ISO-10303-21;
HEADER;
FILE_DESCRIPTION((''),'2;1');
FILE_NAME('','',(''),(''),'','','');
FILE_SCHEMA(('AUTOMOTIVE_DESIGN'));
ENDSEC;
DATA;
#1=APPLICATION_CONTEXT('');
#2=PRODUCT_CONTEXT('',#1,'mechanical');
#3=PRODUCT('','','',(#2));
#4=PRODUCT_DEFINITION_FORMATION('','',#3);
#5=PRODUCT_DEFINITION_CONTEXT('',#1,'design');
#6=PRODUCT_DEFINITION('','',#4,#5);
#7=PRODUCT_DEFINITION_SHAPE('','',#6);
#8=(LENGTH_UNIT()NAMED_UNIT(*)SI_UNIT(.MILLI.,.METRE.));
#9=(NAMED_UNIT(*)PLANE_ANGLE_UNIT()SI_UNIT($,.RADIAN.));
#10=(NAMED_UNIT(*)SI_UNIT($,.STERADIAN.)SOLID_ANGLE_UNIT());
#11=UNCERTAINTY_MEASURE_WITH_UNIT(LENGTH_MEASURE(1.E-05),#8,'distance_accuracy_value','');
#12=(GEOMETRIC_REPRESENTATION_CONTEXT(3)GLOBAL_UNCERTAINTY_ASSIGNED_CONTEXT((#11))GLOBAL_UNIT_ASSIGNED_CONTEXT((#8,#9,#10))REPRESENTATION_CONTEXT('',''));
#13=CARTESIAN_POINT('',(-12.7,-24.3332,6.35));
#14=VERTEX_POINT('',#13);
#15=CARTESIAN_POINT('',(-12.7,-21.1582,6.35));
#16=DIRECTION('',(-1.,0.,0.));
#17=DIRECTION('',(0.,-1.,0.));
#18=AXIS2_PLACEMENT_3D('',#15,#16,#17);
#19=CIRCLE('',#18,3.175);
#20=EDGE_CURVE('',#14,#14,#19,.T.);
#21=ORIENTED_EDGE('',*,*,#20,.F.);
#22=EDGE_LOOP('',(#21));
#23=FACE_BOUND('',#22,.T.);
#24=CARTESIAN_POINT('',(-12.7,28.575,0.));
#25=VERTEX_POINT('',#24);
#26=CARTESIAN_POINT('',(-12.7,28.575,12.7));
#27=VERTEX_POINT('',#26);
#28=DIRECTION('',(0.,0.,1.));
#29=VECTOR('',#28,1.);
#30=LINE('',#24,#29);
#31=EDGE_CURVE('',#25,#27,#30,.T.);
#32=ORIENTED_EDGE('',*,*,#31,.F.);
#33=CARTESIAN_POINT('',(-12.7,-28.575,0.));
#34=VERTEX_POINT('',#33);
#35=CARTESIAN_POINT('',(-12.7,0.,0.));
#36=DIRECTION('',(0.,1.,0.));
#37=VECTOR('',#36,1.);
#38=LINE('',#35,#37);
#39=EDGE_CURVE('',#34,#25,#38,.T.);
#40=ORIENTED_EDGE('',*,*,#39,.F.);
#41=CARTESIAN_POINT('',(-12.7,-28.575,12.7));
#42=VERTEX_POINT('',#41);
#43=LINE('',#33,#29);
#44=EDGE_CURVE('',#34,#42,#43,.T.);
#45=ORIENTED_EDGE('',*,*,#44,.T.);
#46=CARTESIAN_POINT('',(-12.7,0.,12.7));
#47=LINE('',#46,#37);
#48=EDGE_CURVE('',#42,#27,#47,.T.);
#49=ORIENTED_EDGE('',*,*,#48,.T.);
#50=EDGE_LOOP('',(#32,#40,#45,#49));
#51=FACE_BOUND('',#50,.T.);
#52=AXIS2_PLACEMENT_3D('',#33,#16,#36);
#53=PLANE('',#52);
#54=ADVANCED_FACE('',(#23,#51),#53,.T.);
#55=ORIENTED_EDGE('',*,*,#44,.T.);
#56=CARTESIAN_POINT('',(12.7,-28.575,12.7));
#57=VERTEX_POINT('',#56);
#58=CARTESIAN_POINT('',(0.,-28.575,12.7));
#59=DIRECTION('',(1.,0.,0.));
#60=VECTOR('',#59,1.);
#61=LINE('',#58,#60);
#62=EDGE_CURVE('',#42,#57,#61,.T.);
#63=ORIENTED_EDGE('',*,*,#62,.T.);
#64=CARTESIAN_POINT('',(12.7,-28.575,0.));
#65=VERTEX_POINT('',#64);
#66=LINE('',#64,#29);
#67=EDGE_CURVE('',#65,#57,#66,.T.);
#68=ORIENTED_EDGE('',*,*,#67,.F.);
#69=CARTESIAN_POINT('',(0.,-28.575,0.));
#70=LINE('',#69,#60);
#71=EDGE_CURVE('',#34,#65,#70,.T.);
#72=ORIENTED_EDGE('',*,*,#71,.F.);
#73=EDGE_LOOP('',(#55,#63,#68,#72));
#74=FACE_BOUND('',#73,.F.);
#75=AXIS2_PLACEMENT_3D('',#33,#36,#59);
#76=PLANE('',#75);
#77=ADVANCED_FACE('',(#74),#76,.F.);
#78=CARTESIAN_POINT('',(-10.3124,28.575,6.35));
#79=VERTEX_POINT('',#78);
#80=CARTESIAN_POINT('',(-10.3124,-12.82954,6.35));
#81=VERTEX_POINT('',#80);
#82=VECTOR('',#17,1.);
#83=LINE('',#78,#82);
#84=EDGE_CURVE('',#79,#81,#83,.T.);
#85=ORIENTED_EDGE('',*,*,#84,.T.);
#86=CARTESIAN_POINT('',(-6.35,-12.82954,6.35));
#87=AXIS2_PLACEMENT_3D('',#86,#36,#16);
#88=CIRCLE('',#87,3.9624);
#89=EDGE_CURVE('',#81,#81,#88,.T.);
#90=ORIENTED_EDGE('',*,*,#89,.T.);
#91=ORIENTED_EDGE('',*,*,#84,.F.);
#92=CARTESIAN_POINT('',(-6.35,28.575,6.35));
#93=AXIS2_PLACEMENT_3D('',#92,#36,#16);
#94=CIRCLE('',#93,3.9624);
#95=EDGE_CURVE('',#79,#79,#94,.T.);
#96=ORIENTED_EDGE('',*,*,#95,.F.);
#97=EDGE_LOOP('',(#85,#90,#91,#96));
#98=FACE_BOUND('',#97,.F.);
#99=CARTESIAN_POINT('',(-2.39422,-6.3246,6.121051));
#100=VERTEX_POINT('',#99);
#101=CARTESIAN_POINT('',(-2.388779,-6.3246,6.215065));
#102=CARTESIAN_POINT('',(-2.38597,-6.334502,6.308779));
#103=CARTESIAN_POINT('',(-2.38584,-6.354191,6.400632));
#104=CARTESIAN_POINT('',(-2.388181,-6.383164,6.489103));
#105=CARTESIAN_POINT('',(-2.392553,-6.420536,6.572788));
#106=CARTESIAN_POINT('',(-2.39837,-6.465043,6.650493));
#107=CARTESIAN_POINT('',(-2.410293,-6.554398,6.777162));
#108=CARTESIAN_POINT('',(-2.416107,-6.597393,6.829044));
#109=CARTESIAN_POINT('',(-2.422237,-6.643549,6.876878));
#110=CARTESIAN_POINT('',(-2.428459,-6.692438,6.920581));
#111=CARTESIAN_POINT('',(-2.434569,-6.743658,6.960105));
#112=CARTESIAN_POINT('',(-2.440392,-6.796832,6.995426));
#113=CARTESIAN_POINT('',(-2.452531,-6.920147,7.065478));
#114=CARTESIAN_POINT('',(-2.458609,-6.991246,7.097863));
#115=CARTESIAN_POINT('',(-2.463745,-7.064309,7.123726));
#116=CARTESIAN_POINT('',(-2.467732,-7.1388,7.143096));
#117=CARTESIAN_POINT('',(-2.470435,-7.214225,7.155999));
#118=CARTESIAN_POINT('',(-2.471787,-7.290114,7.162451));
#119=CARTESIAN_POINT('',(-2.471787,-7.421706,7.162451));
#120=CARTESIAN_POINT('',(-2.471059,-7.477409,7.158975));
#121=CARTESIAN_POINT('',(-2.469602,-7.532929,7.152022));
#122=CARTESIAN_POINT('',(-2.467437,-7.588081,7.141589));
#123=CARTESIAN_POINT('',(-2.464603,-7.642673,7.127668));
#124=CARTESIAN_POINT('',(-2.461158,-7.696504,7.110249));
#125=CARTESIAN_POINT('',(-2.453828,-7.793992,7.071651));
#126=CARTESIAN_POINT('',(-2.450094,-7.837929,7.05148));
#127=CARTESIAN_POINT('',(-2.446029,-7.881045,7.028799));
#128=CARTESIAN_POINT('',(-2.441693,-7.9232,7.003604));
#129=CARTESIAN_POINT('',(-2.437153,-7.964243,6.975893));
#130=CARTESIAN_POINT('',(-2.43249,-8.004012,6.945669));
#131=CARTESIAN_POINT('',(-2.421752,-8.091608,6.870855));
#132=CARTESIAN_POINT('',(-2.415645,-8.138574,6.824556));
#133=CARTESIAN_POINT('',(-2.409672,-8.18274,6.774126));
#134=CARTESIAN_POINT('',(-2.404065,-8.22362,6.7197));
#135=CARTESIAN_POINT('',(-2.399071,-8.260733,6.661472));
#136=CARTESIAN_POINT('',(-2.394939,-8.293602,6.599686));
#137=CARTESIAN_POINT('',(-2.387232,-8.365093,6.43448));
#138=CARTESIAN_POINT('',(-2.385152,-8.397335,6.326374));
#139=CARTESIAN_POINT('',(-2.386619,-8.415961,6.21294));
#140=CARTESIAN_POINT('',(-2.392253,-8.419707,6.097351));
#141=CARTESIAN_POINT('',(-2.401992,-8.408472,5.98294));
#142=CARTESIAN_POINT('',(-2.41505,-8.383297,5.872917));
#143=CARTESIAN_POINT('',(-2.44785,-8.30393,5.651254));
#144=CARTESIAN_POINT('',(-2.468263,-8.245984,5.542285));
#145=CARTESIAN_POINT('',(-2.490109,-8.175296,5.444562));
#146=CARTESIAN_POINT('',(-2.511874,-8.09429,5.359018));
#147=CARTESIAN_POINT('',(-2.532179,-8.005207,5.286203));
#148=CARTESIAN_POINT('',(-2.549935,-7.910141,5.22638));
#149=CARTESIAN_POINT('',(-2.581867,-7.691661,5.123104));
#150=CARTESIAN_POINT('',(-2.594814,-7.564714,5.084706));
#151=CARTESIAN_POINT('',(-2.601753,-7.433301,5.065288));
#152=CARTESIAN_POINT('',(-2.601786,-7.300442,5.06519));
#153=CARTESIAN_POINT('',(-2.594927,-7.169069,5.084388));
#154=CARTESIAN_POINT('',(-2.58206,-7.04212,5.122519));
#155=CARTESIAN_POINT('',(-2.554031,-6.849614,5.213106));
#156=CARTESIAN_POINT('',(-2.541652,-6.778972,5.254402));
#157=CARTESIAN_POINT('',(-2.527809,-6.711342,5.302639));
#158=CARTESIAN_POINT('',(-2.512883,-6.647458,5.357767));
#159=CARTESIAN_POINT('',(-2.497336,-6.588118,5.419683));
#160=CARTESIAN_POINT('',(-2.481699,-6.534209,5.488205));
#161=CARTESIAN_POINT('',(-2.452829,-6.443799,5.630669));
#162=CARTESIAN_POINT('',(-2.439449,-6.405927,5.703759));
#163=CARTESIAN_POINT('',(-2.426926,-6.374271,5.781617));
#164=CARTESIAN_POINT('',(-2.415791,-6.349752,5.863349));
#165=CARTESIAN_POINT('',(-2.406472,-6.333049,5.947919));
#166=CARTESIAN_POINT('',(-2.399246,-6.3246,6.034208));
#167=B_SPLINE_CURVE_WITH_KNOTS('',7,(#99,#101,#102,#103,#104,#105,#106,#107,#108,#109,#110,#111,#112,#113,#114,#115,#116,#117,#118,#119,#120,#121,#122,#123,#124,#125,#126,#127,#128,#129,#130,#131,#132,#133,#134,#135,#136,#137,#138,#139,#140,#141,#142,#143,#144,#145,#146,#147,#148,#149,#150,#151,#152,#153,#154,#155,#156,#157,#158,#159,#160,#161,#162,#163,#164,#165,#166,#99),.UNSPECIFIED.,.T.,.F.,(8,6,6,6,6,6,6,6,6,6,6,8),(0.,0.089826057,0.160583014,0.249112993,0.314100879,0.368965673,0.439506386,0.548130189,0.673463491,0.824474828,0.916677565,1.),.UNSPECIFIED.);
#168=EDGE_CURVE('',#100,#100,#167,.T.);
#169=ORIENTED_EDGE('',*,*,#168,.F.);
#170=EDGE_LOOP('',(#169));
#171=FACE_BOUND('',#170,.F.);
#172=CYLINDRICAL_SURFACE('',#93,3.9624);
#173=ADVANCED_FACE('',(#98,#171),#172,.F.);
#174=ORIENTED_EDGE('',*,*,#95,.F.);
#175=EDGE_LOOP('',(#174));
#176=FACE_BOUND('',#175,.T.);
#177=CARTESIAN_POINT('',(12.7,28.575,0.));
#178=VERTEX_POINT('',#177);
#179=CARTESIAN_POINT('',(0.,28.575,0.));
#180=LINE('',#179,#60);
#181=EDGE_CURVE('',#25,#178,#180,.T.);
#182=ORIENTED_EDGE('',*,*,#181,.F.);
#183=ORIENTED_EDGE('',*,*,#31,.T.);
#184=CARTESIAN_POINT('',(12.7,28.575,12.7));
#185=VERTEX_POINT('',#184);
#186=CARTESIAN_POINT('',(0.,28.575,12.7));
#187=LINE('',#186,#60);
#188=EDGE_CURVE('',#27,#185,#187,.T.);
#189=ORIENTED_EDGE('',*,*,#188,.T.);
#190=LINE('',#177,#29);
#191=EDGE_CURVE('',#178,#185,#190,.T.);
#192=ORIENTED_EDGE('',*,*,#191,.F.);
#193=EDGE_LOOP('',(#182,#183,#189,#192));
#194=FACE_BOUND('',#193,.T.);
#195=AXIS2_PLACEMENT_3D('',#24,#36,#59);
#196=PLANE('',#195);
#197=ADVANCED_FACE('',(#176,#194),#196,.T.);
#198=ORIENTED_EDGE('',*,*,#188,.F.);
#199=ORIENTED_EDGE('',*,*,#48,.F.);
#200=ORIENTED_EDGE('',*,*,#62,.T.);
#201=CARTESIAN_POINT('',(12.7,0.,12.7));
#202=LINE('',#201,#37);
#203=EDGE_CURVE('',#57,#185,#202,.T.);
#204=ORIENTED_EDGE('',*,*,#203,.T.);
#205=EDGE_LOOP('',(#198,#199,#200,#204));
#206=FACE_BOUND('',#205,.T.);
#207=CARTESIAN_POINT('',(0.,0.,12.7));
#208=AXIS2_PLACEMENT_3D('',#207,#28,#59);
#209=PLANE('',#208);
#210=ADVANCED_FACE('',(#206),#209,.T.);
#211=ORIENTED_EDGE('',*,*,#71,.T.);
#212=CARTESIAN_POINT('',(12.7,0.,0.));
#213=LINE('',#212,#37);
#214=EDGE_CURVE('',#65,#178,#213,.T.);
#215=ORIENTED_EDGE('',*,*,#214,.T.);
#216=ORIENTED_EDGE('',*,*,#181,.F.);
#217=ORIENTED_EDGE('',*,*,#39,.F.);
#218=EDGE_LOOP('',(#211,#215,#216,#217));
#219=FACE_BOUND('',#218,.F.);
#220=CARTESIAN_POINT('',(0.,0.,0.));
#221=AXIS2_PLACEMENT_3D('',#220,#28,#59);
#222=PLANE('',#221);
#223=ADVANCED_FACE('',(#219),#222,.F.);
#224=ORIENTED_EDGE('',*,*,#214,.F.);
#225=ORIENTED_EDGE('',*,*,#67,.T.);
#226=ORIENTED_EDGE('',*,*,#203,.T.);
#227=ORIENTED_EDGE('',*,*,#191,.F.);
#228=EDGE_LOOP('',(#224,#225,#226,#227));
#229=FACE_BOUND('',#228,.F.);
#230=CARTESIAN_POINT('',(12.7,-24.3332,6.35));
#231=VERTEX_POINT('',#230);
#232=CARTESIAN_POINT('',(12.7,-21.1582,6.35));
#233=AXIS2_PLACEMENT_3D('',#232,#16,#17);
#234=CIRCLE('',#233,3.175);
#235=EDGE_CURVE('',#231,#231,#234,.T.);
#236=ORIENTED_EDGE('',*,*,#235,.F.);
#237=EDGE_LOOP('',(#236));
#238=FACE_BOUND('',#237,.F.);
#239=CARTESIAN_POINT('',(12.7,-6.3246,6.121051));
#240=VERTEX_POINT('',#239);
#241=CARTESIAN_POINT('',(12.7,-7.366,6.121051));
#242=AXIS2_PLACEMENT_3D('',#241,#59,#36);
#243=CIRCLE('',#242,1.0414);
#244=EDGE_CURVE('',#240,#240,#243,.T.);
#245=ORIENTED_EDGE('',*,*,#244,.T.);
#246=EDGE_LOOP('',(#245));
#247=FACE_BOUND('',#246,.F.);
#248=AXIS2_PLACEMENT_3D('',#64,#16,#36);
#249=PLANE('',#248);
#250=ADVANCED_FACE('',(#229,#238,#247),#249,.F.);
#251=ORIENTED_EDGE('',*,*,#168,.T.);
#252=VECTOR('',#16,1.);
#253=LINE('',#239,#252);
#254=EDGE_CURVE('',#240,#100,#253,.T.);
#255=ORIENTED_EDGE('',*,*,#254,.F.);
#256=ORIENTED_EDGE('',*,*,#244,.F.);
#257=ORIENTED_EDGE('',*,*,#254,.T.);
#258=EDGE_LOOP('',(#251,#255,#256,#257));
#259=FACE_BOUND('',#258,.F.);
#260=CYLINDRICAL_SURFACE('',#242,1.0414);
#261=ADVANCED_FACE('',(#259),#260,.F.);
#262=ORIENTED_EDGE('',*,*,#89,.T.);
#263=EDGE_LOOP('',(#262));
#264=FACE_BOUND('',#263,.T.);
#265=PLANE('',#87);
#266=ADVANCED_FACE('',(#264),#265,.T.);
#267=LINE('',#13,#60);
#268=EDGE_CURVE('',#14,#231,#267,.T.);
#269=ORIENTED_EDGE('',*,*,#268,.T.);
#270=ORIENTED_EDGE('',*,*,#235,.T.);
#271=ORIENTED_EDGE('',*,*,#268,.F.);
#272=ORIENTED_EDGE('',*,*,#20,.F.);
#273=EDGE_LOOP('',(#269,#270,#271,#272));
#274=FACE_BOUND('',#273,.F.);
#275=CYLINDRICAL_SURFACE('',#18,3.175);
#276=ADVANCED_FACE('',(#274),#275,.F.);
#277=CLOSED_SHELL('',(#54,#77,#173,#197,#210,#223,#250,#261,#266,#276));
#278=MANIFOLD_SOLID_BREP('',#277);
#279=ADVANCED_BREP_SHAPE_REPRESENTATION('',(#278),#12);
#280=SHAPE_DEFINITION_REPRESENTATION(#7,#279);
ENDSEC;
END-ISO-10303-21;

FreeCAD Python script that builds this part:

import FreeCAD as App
import Part
import Sketcher
Q = App.Units.Quantity

doc = App.newDocument("Part")
body = doc.addObject("PartDesign::Body", "Body")

# Sketch on XY plane
sketch1 = body.newObject("Sketcher::SketchObject", "Sketch")
sketch1.AttachmentSupport = (doc.getObject("XY_Plane"), [""])
sketch1.MapMode = "FlatFace"
sketch1.addGeometry([
    Part.LineSegment(App.Vector(-13, 29, 0), App.Vector(-13, -29, 0)),
    Part.LineSegment(App.Vector(-13, -29, 0), App.Vector(13, -29, 0)),
    Part.LineSegment(App.Vector(13, -29, 0), App.Vector(13, 29, 0)),
    Part.LineSegment(App.Vector(13, 29, 0), App.Vector(-13, 29, 0)),
], False)
sketch1.addConstraint([
    Sketcher.Constraint("Coincident", 0, 2, 1, 1),
    Sketcher.Constraint("Coincident", 1, 2, 2, 1),
    Sketcher.Constraint("Coincident", 2, 2, 3, 1),
    Sketcher.Constraint("Coincident", 3, 2, 0, 1),
    Sketcher.Constraint("Vertical", 0),
    Sketcher.Constraint("Horizontal", 1),
    Sketcher.Constraint("Vertical", 2),
    Sketcher.Constraint("Horizontal", 3),
    Sketcher.Constraint("Symmetric", 0, 2, 2, 2, -1, 1),
    Sketcher.Constraint("DistanceX", 1, 1, 1, 2, Q("1 in")),
    Sketcher.Constraint("DistanceY", 0, 2, 0, 1, Q("2.25 in")),
])
pad1 = body.newObject("PartDesign::Pad", "Pad")
pad1.Profile = sketch1
pad1.Length = Q("0.5 in")

# Sketch on YZ plane
sketch2 = body.newObject("Sketcher::SketchObject", "Sketch001")
sketch2.AttachmentSupport = (doc.getObject("YZ_Plane"), [""])
sketch2.MapMode = "FlatFace"
sketch2.AttachmentOffset = App.Placement(App.Vector(0, 0, -0.5 * 25.4), App.Rotation())
sketch2.addGeometry(Part.Circle(App.Vector(-21.2, 6.3, 0), App.Vector(0, 0, 1), 3.2), False)
sketch2.addConstraint([
    Sketcher.Constraint("Diameter", 0, Q("0.25 in")),
    Sketcher.Constraint("DistanceY", -1, 1, 0, 3, Q("0.25 in")),
    Sketcher.Constraint("DistanceX", 0, 3, -1, 1, Q("0.833 in")),
])
pocket1 = body.newObject("PartDesign::Pocket", "Pocket")
pocket1.Profile = sketch2
pocket1.Length = Q("1.213 in")
pocket1.Reversed = True

# Sketch on XZ plane
sketch3 = body.newObject("Sketcher::SketchObject", "Sketch002")
sketch3.AttachmentSupport = (doc.getObject("XZ_Plane"), [""])
sketch3.MapMode = "FlatFace"
sketch3.AttachmentOffset = App.Placement(App.Vector(0, 0, -1.125 * 25.4), App.Rotation())
sketch3.addGeometry(Part.Circle(App.Vector(-6.3, 6.3, 0), App.Vector(0, 0, 1), 4), False)
sketch3.addConstraint([
    Sketcher.Constraint("Diameter", 0, Q("0.312 in")),
    Sketcher.Constraint("DistanceX", 0, 3, -1, 1, Q("0.25 in")),
    Sketcher.Constraint("DistanceY", -1, 1, 0, 3, Q("0.25 in")),
])
pocket2 = body.newObject("PartDesign::Pocket", "Pocket001")
pocket2.Profile = sketch3
pocket2.Length = Q("1.6301 in")
pocket2.Reversed = True

# Sketch on YZ plane
sketch4 = body.newObject("Sketcher::SketchObject", "Sketch003")
sketch4.AttachmentSupport = (doc.getObject("YZ_Plane"), [""])
sketch4.MapMode = "FlatFace"
sketch4.AttachmentOffset = App.Placement(App.Vector(0, 0, 0.5 * 25.4), App.Rotation())
sketch4.addGeometry(Part.Circle(App.Vector(-7.4, 6.1, 0), App.Vector(0, 0, 1), 1), False)
sketch4.addConstraint([
    Sketcher.Constraint("Diameter", 0, Q("0.082 in")),
    Sketcher.Constraint("DistanceX", 0, 3, -1, 1, Q("0.29 in")),
    Sketcher.Constraint("DistanceY", -1, 1, 0, 3, 6.121051),
])
pocket3 = body.newObject("PartDesign::Pocket", "Pocket002")
pocket3.Profile = sketch4
pocket3.Length = Q("0.667 in")

doc.recompute()
